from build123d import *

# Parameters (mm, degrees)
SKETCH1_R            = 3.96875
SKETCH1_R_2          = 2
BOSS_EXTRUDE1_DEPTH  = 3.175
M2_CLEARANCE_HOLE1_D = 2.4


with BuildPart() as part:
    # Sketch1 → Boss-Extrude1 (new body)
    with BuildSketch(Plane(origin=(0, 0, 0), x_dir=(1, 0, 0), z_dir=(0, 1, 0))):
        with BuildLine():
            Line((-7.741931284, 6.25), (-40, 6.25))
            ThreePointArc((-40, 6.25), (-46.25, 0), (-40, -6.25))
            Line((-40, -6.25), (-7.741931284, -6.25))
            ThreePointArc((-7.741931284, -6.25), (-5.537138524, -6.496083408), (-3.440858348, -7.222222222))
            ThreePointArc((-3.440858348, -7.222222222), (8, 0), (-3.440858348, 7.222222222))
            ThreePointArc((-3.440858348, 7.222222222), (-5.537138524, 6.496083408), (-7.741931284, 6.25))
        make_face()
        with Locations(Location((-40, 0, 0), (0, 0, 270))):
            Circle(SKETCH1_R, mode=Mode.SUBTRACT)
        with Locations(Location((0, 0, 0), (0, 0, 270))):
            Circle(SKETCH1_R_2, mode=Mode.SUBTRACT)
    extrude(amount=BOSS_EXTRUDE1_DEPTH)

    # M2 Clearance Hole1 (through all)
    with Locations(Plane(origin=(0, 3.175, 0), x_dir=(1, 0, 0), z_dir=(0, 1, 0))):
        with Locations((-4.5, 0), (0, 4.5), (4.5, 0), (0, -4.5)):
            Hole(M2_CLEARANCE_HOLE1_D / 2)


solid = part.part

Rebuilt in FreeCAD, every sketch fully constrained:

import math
import FreeCAD as App
import Part
import Sketcher
from FreeCAD import Vector

doc = App.newDocument("Part")
body = doc.addObject("PartDesign::Body", "Body")

sketch1 = body.newObject("Sketcher::SketchObject", "Sketch")
sketch1.AttachmentSupport = (doc.getObject("XZ_Plane"), [""])
sketch1.MapMode = "FlatFace"
sketch1.addGeometry([
    Part.LineSegment(Vector(-7.741931, -6.25, 0), Vector(-40, -6.25, 0)),
    Part.ArcOfCircle(Part.Circle(Vector(-40, 0, 0), Vector(0, 0, 1), 6.25), math.radians(90), math.radians(270)),
    Part.LineSegment(Vector(-40, 6.25, 0), Vector(-7.741931, 6.25, 0)),
    Part.ArcOfCircle(Part.Circle(Vector(-7.741931, 16.25, 0), Vector(0, 0, 1), 10), math.radians(-90), math.radians(-64.525631)),
    Part.ArcOfCircle(Part.Circle(Vector(0, 0, 0), Vector(0, 0, 1), 8), math.radians(-115.474369), math.radians(115.474369)),
    Part.ArcOfCircle(Part.Circle(Vector(-7.741931, -16.25, 0), Vector(0, 0, 1), 10), math.radians(64.525631), math.radians(90)),
    Part.Circle(Vector(-40, 0, 0), Vector(0, 0, 1), 3.96875),
    Part.Circle(Vector(0, 0, 0), Vector(0, 0, 1), 2),
], False)
sketch1.addConstraint([
    Sketcher.Constraint("Tangent", 0, 2, 1, 2),
    Sketcher.Constraint("Tangent", 1, 1, 2, 1),
    Sketcher.Constraint("Tangent", 2, 2, 3, 1),
    Sketcher.Constraint("Tangent", 3, 2, 4, 2),
    Sketcher.Constraint("Tangent", 4, 1, 5, 1),
    Sketcher.Constraint("Tangent", 5, 2, 0, 1),
    Sketcher.Constraint("Horizontal", 0),
    Sketcher.Constraint("Horizontal", 2),
    Sketcher.Constraint("Coincident", 4, 3, -1, 1),
    Sketcher.Constraint("Coincident", 7, 3, -1, 1),
    Sketcher.Constraint("Coincident", 6, 3, 1, 3),
    Sketcher.Constraint("Equal", 3, 5),
    Sketcher.Constraint("PointOnObject", 1, 3, -1),
    Sketcher.Constraint("Diameter", 7, 4.0),
    Sketcher.Constraint("Radius", 3, 10.0),
    Sketcher.Constraint("Radius", 4, 8.0),
    Sketcher.Constraint("Radius", 1, 6.25),
    Sketcher.Constraint("DistanceX", 1, 3, -1, 1, 40.0),
    Sketcher.Constraint("Diameter", 6, 7.9375),
])
pad1 = body.newObject("PartDesign::Pad", "Pad")
pad1.Profile = sketch1
pad1.Length = 3.175
pad1.Reversed = True

sketch2 = body.newObject("Sketcher::SketchObject", "Sketch001")
sketch2.AttachmentSupport = (doc.getObject("XZ_Plane"), [""])
sketch2.MapMode = "FlatFace"
sketch2.AttachmentOffset = App.Placement(Vector(0, 0, -3.175), App.Rotation())
sketch2.addGeometry([
    Part.Circle(Vector(-4.5, 0, 0), Vector(0, 0, 1), 1.2),
    Part.Circle(Vector(0, -4.5, 0), Vector(0, 0, 1), 1.2),
    Part.Circle(Vector(4.5, 0, 0), Vector(0, 0, 1), 1.2),
    Part.Circle(Vector(0, 4.5, 0), Vector(0, 0, 1), 1.2),
], False)
sketch2.addConstraint([
    Sketcher.Constraint("Equal", 0, 1),
    Sketcher.Constraint("Equal", 1, 2),
    Sketcher.Constraint("Equal", 2, 3),
    Sketcher.Constraint("Symmetric", 0, 3, 2, 3, -1, 1),
    Sketcher.Constraint("Symmetric", 1, 3, 3, 3, -1, 1),
    Sketcher.Constraint("PointOnObject", 0, 3, -1),
    Sketcher.Constraint("PointOnObject", 1, 3, -2),
    Sketcher.Constraint("Diameter", 0, 2.4),
    Sketcher.Constraint("DistanceX", 0, 3, 2, 3, 9.0),
    Sketcher.Constraint("DistanceY", 1, 3, 3, 3, 9.0),
])
doc.recompute()
hole = body.newObject("PartDesign::Hole", "Hole")
hole.Profile = sketch2
hole.ThreadType = "None"
hole.Diameter = 2.4
hole.DepthType = "ThroughAll"
hole.Reversed = True

doc.recompute()
